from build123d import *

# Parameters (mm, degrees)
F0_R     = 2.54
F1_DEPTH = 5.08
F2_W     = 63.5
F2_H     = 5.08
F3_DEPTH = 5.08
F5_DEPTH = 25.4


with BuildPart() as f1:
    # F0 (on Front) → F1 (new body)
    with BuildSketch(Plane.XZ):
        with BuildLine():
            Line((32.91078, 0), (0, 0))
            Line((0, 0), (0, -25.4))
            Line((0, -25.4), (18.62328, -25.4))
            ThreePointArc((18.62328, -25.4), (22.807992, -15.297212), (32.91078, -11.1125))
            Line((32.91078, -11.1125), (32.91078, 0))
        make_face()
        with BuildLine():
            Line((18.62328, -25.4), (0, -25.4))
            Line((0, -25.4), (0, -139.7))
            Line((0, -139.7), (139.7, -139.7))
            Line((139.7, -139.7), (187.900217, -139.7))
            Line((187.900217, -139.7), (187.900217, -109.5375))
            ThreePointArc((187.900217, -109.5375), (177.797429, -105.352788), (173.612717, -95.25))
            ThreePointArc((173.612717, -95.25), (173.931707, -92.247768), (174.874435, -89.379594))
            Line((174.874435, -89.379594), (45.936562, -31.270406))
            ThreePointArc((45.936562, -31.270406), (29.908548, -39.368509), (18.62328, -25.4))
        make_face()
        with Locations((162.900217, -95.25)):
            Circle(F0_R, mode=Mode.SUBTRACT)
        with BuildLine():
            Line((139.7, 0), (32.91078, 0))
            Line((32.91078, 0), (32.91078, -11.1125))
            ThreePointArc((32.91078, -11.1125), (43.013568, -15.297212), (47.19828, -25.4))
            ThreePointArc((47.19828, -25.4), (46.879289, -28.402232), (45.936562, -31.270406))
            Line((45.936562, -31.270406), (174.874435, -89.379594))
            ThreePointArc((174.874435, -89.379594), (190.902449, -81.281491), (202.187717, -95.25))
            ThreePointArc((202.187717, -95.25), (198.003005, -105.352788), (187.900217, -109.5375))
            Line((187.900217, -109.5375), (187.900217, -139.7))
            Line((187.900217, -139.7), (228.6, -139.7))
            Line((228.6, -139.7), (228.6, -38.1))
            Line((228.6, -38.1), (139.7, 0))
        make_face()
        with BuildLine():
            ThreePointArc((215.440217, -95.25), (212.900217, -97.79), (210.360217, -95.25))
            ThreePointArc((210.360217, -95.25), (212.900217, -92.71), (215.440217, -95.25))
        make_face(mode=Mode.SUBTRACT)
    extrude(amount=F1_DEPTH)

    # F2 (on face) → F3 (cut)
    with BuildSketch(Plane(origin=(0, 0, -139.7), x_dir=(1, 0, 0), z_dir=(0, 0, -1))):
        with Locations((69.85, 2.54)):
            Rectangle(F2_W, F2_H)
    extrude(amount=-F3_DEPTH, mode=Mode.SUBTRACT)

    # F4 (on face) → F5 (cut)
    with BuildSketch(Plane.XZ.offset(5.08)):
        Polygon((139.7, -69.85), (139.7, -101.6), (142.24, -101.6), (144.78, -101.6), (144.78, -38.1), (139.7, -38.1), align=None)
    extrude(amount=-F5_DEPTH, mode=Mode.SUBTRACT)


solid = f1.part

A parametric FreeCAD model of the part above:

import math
import FreeCAD as App
import Part
import Sketcher
from FreeCAD import Vector
Q = App.Units.Quantity


def add_polygon(sketch, points):
    """Adds a closed chain of lines whose ends are joined by coincident constraints."""
    first, n = sketch.GeometryCount, len(points)
    for a, b in zip(points, points[1:] + points[:1]):
        sketch.addGeometry(Part.LineSegment(App.Vector(*a, 0), App.Vector(*b, 0)), False)
    for i in range(n):
        sketch.addConstraint(Sketcher.Constraint("Coincident", first + i, 2, first + (i + 1) % n, 1))

doc = App.newDocument("Part")
body = doc.addObject("PartDesign::Body", "Body")

# Sketch on XZ plane
sketch1 = body.newObject("Sketcher::SketchObject", "Sketch")
sketch1.AttachmentSupport = (doc.getObject("XZ_Plane"), [""])
sketch1.MapMode = "FlatFace"
add_polygon(sketch1, [(0, 0), (0, -139.7), (228.6, -139.7), (228.6, -38.1), (139.7, 0)])  # lines 0-4
sketch1.addGeometry(Part.Circle(Vector(162.900217, -95.25, 0), Vector(0, 0, 1), 2.54), False)  # 5
sketch1.addGeometry(Part.ArcOfCircle(Part.Circle(Vector(187.900217, -95.25, 0), Vector(0, 0, 1), 14.2875), math.radians(-179.999998), math.radians(-90.000002)), False)  # 6
sketch1.addGeometry(Part.ArcOfCircle(Part.Circle(Vector(187.900204, -95.249997, 0), Vector(0, 0, 1), 14.287487), math.radians(155.740049), math.radians(180.000014)), False)  # 7
sketch1.addGeometry(Part.ArcOfCircle(Part.Circle(Vector(187.900217, -95.250001, 0), Vector(0, 0, 1), 14.2875), math.radians(0.000003), math.radians(155.740055)), False)  # 8
sketch1.addGeometry(Part.ArcOfCircle(Part.Circle(Vector(187.900217, -95.25, 0), Vector(0, 0, 1), 14.2875), math.radians(-89.999998), math.radians(-0.000002)), False)  # 9
sketch1.addGeometry(Part.Circle(Vector(212.900217, -95.25, 0), Vector(0, 0, 1), 2.54), False)  # 10
sketch1.addGeometry(Part.ArcOfCircle(Part.Circle(Vector(32.91078, -25.4, 0), Vector(0, 0, 1), 14.2875), math.radians(90.000002), math.radians(179.999998)), False)  # 11
sketch1.addGeometry(Part.ArcOfCircle(Part.Circle(Vector(32.91078, -25.4, 0), Vector(0, 0, 1), 14.2875), math.radians(0.000002), math.radians(89.999998)), False)  # 12
sketch1.addGeometry(Part.ArcOfCircle(Part.Circle(Vector(32.910751, -25.399994, 0), Vector(0, 0, 1), 14.287529), math.radians(-24.259914), math.radians(-0.000023)), False)  # 13
sketch1.addGeometry(Part.ArcOfCircle(Part.Circle(Vector(32.91078, -25.399999, 0), Vector(0, 0, 1), 14.2875), math.radians(-179.999997), math.radians(-24.259945)), False)  # 14
sketch1.addConstraint(Sketcher.Constraint("Coincident", 6, 1, 7, 2))
sketch1.addConstraint(Sketcher.Constraint("Coincident", 7, 1, 8, 2))
sketch1.addConstraint(Sketcher.Constraint("Coincident", 8, 1, 9, 2))
sketch1.addConstraint(Sketcher.Constraint("Coincident", 9, 1, 6, 2))
sketch1.addConstraint(Sketcher.Constraint("Coincident", 11, 1, 12, 2))
sketch1.addConstraint(Sketcher.Constraint("Coincident", 12, 1, 13, 2))
sketch1.addConstraint(Sketcher.Constraint("Coincident", 13, 1, 14, 2))
sketch1.addConstraint(Sketcher.Constraint("Coincident", 14, 1, 11, 2))
sketch1.addConstraint(Sketcher.Constraint("Vertical", 0))
sketch1.addConstraint(Sketcher.Constraint("Horizontal", 1))
sketch1.addConstraint(Sketcher.Constraint("Vertical", 2))
sketch1.addConstraint(Sketcher.Constraint("Horizontal", 4))
sketch1.addConstraint(Sketcher.Constraint("Coincident", 4, 2, -1, 1))
sketch1.addConstraint(Sketcher.Constraint("Coincident", 8, 3, 6, 3))
sketch1.addConstraint(Sketcher.Constraint("Coincident", 9, 3, 6, 3))
sketch1.addConstraint(Sketcher.Constraint("Coincident", 12, 3, 11, 3))
sketch1.addConstraint(Sketcher.Constraint("Coincident", 14, 3, 11, 3))
sketch1.addConstraint(Sketcher.Constraint("Diameter", 5, Q("0.2 in")))
sketch1.addConstraint(Sketcher.Constraint("Diameter", 10, Q("0.2 in")))
sketch1.addConstraint(Sketcher.Constraint("DistanceX", 1, 1, 1, 2, Q("9 in")))
sketch1.addConstraint(Sketcher.Constraint("DistanceY", 2, 1, 2, 2, Q("4 in")))
sketch1.addConstraint(Sketcher.Constraint("DistanceX", 4, 2, 4, 1, Q("5.5 in")))
sketch1.addConstraint(Sketcher.Constraint("DistanceY", 0, 2, 0, 1, Q("5.5 in")))
sketch1.addConstraint(Sketcher.Constraint("DistanceY", 11, 3, -1, 1, Q("1 in")))
sketch1.addConstraint(Sketcher.Constraint("DistanceY", 12, 1, -1, 1, Q("1 in")))
sketch1.addConstraint(Sketcher.Constraint("DistanceY", 14, 1, -1, 1, Q("1 in")))
sketch1.addConstraint(Sketcher.Constraint("Radius", 6, Q("0.5625 in")))
sketch1.addConstraint(Sketcher.Constraint("Radius", 11, Q("0.5625 in")))
sketch1.addConstraint(Sketcher.Constraint("DistanceY", 5, 3, -1, 1, Q("3.75 in")))
sketch1.addConstraint(Sketcher.Constraint("DistanceY", 6, 3, -1, 1, Q("3.75 in")))
sketch1.addConstraint(Sketcher.Constraint("DistanceY", 7, 3, -1, 1, Q("3.7499999 in")))
sketch1.addConstraint(Sketcher.Constraint("DistanceY", 10, 3, -1, 1, Q("3.75 in")))
sketch1.addConstraint(Sketcher.Constraint("DistanceY", 6, 1, -1, 1, Q("3.75 in")))
sketch1.addConstraint(Sketcher.Constraint("DistanceY", 8, 1, -1, 1, Q("3.75 in")))
sketch1.addConstraint(Sketcher.Constraint("DistanceY", 7, 3, 13, 3, Q("2.7500001 in")))
sketch1.addConstraint(Sketcher.Constraint("DistanceX", 6, 1, 9, 1, Q("0.5625 in")))
sketch1.addConstraint(Sketcher.Constraint("DistanceX", 11, 1, 12, 1, Q("0.5625 in")))
sketch1.addConstraint(Sketcher.Constraint("DistanceX", -1, 1, 11, 3, Q("1.2957 in")))
sketch1.addConstraint(Sketcher.Constraint("DistanceX", 5, 3, 6, 3, Q("25 mm")))
sketch1.addConstraint(Sketcher.Constraint("DistanceX", 6, 3, 10, 3, Q("25 mm")))
sketch1.addConstraint(Sketcher.Constraint("DistanceX", -1, 1, 13, 1, Q("45.936562 mm")))
sketch1.addConstraint(Sketcher.Constraint("DistanceX", 7, 1, 7, 3, Q("13.025769 mm")))
sketch1.addConstraint(Sketcher.Constraint("DistanceX", -1, 1, 5, 3, Q("162.900217 mm")))
pad1 = body.newObject("PartDesign::Pad", "Pad")
pad1.Profile = sketch1
pad1.Length = Q("0.2 in")

# Sketch on XY plane
sketch2 = body.newObject("Sketcher::SketchObject", "Sketch001")
sketch2.AttachmentSupport = (doc.getObject("XY_Plane"), [""])
sketch2.MapMode = "FlatFace"
sketch2.AttachmentOffset = App.Placement(Vector(0, 0, -5.5 * 25.4), App.Rotation())
add_polygon(sketch2, [(38.1, -5.08), (38.1, 0), (101.6, 0), (101.6, -5.08)])  # lines 0-3
sketch2.addConstraint(Sketcher.Constraint("Vertical", 0))
sketch2.addConstraint(Sketcher.Constraint("Horizontal", 1))
sketch2.addConstraint(Sketcher.Constraint("Vertical", 2))
sketch2.addConstraint(Sketcher.Constraint("Horizontal", 3))
sketch2.addConstraint(Sketcher.Constraint("PointOnObject", 0, 2, -1))
sketch2.addConstraint(Sketcher.Constraint("DistanceX", 1, 1, 1, 2, Q("2.5 in")))
sketch2.addConstraint(Sketcher.Constraint("DistanceY", 0, 1, 0, 2, Q("0.2 in")))
sketch2.addConstraint(Sketcher.Constraint("DistanceX", -1, 1, 1, 2, Q("4 in")))
pocket1 = body.newObject("PartDesign::Pocket", "Pocket")
pocket1.Profile = sketch2
pocket1.Length = Q("0.2 in")
pocket1.Reversed = True

# Sketch on XZ plane
sketch3 = body.newObject("Sketcher::SketchObject", "Sketch002")
sketch3.AttachmentSupport = (doc.getObject("XZ_Plane"), [""])
sketch3.MapMode = "FlatFace"
sketch3.AttachmentOffset = App.Placement(Vector(0, 0, 0.2 * 25.4), App.Rotation())
add_polygon(sketch3, [(139.7, -101.6), (144.78, -101.6), (144.78, -38.1), (139.7, -38.1)])  # lines 0-3
sketch3.addConstraint(Sketcher.Constraint("Horizontal", 0))
sketch3.addConstraint(Sketcher.Constraint("Vertical", 1))
sketch3.addConstraint(Sketcher.Constraint("Horizontal", 2))
sketch3.addConstraint(Sketcher.Constraint("Vertical", 3))
sketch3.addConstraint(Sketcher.Constraint("DistanceX", 0, 1, 0, 2, Q("0.2 in")))
sketch3.addConstraint(Sketcher.Constraint("DistanceY", 1, 1, 1, 2, Q("2.5 in")))
sketch3.addConstraint(Sketcher.Constraint("DistanceY", 0, 2, -1, 1, Q("4 in")))
sketch3.addConstraint(Sketcher.Constraint("DistanceX", -1, 1, 0, 2, Q("5.7 in")))
pocket2 = body.newObject("PartDesign::Pocket", "Pocket001")
pocket2.Profile = sketch3
pocket2.Length = Q("1 in")

doc.recompute()
